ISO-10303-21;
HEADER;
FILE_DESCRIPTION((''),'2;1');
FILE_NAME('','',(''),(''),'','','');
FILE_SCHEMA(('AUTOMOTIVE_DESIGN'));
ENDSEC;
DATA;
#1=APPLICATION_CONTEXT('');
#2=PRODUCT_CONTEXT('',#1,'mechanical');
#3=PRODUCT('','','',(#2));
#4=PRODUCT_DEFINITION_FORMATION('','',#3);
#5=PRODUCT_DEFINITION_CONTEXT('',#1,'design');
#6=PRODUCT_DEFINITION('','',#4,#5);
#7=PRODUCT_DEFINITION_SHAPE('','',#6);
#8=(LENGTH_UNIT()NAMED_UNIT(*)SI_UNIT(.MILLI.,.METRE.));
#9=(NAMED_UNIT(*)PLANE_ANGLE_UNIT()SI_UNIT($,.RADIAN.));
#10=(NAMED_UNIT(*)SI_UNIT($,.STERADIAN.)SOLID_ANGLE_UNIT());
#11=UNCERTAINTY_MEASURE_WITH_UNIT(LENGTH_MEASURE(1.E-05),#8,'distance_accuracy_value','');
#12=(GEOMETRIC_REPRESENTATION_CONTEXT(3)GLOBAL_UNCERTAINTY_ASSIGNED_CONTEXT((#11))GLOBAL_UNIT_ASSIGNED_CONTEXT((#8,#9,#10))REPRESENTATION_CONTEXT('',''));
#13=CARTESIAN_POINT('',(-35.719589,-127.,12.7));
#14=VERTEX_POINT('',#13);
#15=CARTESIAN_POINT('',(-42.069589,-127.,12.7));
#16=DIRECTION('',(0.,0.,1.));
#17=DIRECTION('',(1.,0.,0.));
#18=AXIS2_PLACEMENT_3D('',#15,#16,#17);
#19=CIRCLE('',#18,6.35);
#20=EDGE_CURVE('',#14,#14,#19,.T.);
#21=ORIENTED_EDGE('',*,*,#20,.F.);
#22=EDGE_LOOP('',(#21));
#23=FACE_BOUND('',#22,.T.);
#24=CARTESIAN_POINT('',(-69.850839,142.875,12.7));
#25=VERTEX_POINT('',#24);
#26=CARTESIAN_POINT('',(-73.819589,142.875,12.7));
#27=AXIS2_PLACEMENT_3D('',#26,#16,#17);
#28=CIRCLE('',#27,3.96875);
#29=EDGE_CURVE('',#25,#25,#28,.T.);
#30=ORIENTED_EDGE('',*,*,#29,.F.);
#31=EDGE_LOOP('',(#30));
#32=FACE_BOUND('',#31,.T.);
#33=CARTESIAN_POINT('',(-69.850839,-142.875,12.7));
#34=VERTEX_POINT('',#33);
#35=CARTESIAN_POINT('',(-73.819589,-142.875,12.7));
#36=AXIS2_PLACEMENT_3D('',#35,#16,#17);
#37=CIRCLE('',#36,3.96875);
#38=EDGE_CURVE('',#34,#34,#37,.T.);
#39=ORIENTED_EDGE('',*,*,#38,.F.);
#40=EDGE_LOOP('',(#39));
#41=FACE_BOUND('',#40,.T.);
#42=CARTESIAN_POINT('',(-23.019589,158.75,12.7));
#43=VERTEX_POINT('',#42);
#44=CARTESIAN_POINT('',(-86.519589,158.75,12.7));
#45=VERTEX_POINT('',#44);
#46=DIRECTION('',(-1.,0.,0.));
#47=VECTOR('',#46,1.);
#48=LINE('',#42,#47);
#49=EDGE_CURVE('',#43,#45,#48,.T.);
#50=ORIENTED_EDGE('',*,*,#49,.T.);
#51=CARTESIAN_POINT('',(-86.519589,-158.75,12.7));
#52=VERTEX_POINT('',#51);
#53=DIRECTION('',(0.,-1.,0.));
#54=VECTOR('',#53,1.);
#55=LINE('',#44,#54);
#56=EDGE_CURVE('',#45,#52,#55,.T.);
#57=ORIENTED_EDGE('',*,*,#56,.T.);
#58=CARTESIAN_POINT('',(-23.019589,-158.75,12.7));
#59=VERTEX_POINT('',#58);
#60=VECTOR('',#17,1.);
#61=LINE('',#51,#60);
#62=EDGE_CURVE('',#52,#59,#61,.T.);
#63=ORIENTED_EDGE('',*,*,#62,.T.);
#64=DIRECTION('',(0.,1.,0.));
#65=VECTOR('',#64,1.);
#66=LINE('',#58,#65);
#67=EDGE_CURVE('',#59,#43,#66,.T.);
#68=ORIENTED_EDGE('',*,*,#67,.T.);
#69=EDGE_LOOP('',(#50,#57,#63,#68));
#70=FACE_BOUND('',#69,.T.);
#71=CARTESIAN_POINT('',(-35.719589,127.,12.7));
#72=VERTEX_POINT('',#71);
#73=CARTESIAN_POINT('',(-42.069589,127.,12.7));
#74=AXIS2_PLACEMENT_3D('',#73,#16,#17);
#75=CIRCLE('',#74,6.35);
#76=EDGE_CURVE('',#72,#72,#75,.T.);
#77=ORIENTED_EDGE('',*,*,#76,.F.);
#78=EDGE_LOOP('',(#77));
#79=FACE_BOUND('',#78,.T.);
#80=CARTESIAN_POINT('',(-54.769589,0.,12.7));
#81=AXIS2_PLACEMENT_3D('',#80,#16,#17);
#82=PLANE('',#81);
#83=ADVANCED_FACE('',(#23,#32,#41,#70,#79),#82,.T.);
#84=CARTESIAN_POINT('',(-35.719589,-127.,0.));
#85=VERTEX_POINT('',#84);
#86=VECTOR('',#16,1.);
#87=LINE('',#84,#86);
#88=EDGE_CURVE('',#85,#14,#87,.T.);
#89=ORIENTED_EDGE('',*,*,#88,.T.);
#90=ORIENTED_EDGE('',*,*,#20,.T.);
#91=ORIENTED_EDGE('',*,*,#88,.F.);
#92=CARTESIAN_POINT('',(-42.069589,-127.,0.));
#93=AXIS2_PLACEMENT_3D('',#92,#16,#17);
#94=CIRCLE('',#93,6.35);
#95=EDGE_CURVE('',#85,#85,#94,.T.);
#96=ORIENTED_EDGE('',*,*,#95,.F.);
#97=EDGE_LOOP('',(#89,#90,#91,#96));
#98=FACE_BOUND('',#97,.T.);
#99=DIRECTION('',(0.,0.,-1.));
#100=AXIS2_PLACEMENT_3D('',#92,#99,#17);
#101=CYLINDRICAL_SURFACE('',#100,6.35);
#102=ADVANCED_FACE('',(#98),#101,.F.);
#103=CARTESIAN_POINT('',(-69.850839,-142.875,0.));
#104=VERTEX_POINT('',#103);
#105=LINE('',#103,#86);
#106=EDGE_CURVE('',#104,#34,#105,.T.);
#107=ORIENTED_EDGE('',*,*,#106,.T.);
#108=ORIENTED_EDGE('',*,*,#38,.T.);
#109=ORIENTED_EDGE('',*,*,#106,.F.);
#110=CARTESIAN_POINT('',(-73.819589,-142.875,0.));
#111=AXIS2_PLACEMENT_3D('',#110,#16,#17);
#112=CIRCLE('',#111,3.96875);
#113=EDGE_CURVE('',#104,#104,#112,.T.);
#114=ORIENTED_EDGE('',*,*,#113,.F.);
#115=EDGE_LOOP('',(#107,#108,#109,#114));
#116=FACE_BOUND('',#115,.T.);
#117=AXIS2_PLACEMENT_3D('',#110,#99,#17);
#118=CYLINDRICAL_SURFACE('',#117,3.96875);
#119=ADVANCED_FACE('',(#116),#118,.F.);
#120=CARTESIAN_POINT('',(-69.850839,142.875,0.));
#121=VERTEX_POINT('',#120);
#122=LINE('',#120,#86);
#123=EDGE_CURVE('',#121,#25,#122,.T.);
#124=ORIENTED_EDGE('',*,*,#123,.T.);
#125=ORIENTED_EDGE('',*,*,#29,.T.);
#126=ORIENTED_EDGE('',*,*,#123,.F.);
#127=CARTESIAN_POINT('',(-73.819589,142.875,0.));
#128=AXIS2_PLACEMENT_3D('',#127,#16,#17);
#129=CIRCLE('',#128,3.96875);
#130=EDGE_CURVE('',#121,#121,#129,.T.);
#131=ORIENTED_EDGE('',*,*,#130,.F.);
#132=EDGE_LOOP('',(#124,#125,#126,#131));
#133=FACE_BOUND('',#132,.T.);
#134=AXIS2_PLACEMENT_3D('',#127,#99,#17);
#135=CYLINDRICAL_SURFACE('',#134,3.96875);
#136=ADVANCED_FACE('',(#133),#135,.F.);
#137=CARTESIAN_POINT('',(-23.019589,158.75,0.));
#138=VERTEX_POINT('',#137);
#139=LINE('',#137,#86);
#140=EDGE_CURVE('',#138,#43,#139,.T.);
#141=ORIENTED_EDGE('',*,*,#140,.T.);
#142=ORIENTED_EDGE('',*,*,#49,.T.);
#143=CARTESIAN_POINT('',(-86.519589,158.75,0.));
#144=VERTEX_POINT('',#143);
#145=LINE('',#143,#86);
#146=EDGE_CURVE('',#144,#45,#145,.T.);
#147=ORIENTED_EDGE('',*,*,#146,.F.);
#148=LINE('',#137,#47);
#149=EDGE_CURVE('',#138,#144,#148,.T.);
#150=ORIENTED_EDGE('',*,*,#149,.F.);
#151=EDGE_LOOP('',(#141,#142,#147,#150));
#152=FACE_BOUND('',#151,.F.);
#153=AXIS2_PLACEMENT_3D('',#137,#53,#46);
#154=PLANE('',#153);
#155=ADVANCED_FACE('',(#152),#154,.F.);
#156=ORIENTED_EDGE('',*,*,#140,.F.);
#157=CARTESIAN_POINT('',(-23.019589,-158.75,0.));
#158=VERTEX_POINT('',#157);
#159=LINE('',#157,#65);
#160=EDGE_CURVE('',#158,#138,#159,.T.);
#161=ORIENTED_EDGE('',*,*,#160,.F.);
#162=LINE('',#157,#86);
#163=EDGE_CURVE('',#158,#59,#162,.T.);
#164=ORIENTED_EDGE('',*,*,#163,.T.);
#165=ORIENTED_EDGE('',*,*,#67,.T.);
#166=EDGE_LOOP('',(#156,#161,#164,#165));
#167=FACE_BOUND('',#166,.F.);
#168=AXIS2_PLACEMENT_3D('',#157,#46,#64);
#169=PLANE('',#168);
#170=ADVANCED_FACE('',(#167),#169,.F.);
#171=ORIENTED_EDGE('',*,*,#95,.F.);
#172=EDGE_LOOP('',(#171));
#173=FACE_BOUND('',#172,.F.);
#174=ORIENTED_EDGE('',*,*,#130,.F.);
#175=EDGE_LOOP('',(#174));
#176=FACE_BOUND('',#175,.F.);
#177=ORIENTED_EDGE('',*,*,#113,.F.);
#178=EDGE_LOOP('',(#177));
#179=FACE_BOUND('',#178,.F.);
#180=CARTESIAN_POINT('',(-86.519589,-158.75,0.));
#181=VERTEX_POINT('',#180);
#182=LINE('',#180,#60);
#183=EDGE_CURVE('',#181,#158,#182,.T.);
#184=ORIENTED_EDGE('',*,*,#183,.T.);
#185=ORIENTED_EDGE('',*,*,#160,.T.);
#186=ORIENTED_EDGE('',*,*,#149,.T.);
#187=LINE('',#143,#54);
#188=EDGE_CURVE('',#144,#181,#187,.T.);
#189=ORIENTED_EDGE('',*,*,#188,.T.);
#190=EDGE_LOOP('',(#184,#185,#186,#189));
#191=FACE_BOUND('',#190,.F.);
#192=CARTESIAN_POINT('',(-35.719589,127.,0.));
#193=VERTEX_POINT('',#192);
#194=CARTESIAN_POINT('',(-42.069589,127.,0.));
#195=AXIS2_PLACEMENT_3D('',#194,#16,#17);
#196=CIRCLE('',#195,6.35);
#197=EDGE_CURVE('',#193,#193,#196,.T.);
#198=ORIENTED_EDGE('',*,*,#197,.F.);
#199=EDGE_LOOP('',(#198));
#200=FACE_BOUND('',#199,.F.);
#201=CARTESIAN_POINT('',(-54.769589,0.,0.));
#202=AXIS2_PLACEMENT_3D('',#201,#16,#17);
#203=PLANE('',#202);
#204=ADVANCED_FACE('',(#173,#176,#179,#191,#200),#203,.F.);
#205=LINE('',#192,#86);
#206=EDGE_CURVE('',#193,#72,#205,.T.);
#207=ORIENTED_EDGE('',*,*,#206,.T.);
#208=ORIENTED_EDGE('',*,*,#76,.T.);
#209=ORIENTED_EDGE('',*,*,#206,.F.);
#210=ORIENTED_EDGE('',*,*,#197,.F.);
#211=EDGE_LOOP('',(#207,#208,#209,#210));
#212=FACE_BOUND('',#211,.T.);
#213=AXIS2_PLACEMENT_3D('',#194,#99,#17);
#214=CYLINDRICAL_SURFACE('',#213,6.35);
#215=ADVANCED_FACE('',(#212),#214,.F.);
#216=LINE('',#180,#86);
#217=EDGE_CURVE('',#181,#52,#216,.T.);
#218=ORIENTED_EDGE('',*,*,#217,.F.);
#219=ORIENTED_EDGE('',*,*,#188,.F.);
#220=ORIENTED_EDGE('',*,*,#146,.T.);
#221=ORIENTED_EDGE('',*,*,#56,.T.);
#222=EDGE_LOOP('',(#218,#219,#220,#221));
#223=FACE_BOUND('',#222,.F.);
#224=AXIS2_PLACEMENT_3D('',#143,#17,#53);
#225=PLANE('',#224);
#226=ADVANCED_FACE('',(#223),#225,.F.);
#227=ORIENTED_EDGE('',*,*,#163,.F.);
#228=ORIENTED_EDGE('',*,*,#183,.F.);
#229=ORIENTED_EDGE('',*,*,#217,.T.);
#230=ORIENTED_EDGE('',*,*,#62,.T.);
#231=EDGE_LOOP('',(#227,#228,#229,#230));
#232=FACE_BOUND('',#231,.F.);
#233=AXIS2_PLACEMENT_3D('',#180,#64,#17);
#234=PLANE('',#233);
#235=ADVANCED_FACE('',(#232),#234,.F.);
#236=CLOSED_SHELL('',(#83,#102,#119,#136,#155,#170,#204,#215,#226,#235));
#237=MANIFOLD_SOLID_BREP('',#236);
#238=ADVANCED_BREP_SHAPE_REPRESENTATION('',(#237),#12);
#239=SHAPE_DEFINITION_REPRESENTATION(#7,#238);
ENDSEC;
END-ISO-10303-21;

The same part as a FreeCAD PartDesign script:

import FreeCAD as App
import Part
import Sketcher
Q = App.Units.Quantity

doc = App.newDocument("Part")
body = doc.addObject("PartDesign::Body", "Body")

sketch1 = body.newObject("Sketcher::SketchObject", "Sketch")
sketch1.AttachmentSupport = (doc.getObject("XY_Plane"), [""])
sketch1.MapMode = "FlatFace"
sketch1.addGeometry([
    Part.LineSegment(App.Vector(-23, 158.8, 0), App.Vector(-86.5, 158.8, 0)),
    Part.LineSegment(App.Vector(-86.5, 158.8, 0), App.Vector(-86.5, -158.8, 0)),
    Part.LineSegment(App.Vector(-86.5, -158.8, 0), App.Vector(-23, -158.8, 0)),
    Part.LineSegment(App.Vector(-23, -158.8, 0), App.Vector(-23, 158.8, 0)),
    Part.Circle(App.Vector(-73.8, -142.9, 0), App.Vector(0, 0, 1), 4),
    Part.Circle(App.Vector(-42.1, -127, 0), App.Vector(0, 0, 1), 6.3),
    Part.Circle(App.Vector(-73.8, 142.9, 0), App.Vector(0, 0, 1), 4),
    Part.Circle(App.Vector(-42.1, 127, 0), App.Vector(0, 0, 1), 6.3),
], False)
sketch1.addConstraint([
    Sketcher.Constraint("Coincident", 0, 2, 1, 1),
    Sketcher.Constraint("Coincident", 1, 2, 2, 1),
    Sketcher.Constraint("Coincident", 2, 2, 3, 1),
    Sketcher.Constraint("Coincident", 3, 2, 0, 1),
    Sketcher.Constraint("Horizontal", 0),
    Sketcher.Constraint("Vertical", 1),
    Sketcher.Constraint("Horizontal", 2),
    Sketcher.Constraint("Vertical", 3),
    Sketcher.Constraint("Equal", 4, 6),
    Sketcher.Constraint("Equal", 5, 7),
    Sketcher.Constraint("Symmetric", 4, 3, 6, 3, -1),
    Sketcher.Constraint("Symmetric", 5, 3, 7, 3, -1),
    Sketcher.Constraint("Diameter", 5, Q("0.5 in")),
    Sketcher.Constraint("Diameter", 4, Q("0.3125 in")),
    Sketcher.Constraint("DistanceX", 0, 2, 0, 1, Q("2.5 in")),
    Sketcher.Constraint("DistanceY", 1, 2, 1, 1, Q("12.5 in")),
    Sketcher.Constraint("DistanceY", 5, 3, -1, 1, Q("5 in")),
    Sketcher.Constraint("DistanceX", 4, 3, 2, 2, Q("2 in")),
    Sketcher.Constraint("DistanceY", -1, 1, 0, 2, Q("6.25 in")),
    Sketcher.Constraint("DistanceX", 4, 3, 5, 3, Q("1.25 in")),
    Sketcher.Constraint("DistanceY", 4, 3, 6, 3, Q("11.25 in")),
    Sketcher.Constraint("DistanceX", 4, 3, -1, 1, Q("73.819589 mm")),
])
pad1 = body.newObject("PartDesign::Pad", "Pad")
pad1.Profile = sketch1
pad1.Length = Q("0.5 in")

doc.recompute()
